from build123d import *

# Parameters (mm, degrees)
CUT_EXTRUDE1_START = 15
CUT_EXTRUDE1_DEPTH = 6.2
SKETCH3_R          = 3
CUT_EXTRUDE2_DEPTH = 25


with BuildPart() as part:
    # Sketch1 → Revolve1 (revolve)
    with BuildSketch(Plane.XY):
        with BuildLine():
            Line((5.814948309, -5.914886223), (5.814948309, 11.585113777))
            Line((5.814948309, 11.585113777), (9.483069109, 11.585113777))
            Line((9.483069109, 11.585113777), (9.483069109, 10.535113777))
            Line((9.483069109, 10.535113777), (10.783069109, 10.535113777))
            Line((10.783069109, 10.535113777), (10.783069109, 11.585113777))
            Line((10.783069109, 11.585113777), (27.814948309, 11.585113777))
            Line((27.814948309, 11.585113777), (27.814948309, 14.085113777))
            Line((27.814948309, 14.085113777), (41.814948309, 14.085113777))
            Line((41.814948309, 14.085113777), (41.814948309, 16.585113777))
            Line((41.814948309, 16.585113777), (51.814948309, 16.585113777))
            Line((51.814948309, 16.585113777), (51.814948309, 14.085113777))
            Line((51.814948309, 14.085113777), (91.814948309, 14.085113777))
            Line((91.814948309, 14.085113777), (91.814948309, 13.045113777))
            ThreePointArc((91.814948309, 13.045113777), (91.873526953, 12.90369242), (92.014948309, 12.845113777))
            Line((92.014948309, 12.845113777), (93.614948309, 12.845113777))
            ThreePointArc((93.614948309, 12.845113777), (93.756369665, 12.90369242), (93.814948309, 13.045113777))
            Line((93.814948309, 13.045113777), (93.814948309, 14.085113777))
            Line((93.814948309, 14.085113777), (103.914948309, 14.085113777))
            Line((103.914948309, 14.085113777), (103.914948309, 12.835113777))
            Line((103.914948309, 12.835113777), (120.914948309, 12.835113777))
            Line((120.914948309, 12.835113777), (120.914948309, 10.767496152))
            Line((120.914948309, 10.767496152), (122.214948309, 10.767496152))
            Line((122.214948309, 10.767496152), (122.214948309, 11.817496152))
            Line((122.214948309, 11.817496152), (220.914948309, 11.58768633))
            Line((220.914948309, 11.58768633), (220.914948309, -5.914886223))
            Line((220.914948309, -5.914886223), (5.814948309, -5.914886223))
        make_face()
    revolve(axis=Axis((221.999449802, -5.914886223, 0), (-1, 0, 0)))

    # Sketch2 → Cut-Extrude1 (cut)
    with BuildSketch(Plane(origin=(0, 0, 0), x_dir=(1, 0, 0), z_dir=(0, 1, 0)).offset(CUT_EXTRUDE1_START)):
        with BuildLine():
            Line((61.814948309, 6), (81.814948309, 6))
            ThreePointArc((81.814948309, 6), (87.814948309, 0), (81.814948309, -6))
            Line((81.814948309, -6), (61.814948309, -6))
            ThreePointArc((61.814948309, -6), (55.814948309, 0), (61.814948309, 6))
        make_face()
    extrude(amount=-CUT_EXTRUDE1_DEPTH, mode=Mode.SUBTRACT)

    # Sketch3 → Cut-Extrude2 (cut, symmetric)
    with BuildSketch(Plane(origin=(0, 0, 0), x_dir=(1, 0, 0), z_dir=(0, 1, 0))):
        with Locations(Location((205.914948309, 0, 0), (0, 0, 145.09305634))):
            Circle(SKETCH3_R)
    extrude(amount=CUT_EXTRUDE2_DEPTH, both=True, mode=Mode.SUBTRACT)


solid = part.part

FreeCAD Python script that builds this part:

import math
import FreeCAD as App
import Part
import Sketcher
from FreeCAD import Vector

doc = App.newDocument("Part")
body = doc.addObject("PartDesign::Body", "Body")

sketch1 = body.newObject("Sketcher::SketchObject", "Sketch")
sketch1.AttachmentSupport = (doc.getObject("XY_Plane"), [""])
sketch1.MapMode = "FlatFace"
sketch1.addGeometry(Part.LineSegment(Vector(5.81, 11.59, 0), Vector(5.81, -5.91, 0)), False)
sketch1.addGeometry(Part.LineSegment(Vector(5.81, -5.91, 0), Vector(220.91, -5.91, 0)), False)
sketch1.addGeometry(Part.LineSegment(Vector(220.91, -5.91, 0), Vector(220.91, 11.59, 0)), False)
sketch1.addGeometry(Part.LineSegment(Vector(220.91, 11.59, 0), Vector(122.21, 11.82, 0)), False)
sketch1.addGeometry(Part.LineSegment(Vector(122.21, 11.82, 0), Vector(122.21, 10.77, 0)), False)
sketch1.addGeometry(Part.LineSegment(Vector(122.21, 10.77, 0), Vector(120.91, 10.77, 0)), False)
sketch1.addGeometry(Part.LineSegment(Vector(120.91, 10.77, 0), Vector(120.91, 12.84, 0)), False)
sketch1.addGeometry(Part.LineSegment(Vector(120.91, 12.84, 0), Vector(103.91, 12.84, 0)), False)
sketch1.addGeometry(Part.LineSegment(Vector(103.91, 12.84, 0), Vector(103.91, 14.09, 0)), False)
sketch1.addGeometry(Part.LineSegment(Vector(103.91, 14.09, 0), Vector(93.81, 14.09, 0)), False)
sketch1.addGeometry(Part.LineSegment(Vector(93.81, 14.09, 0), Vector(93.81, 13.05, 0)), False)
sketch1.addGeometry(Part.ArcOfCircle(Part.Circle(Vector(93.61, 13.05, 0), Vector(0, 0, 1), 0.2), math.radians(-90), math.radians(0)), False)
sketch1.addGeometry(Part.LineSegment(Vector(93.61, 12.85, 0), Vector(92.01, 12.85, 0)), False)
sketch1.addGeometry(Part.ArcOfCircle(Part.Circle(Vector(92.01, 13.05, 0), Vector(0, 0, 1), 0.2), math.radians(180), math.radians(270)), False)
sketch1.addGeometry(Part.LineSegment(Vector(91.81, 13.05, 0), Vector(91.81, 14.09, 0)), False)
sketch1.addGeometry(Part.LineSegment(Vector(91.81, 14.09, 0), Vector(51.81, 14.09, 0)), False)
sketch1.addGeometry(Part.LineSegment(Vector(51.81, 14.09, 0), Vector(51.81, 16.59, 0)), False)
sketch1.addGeometry(Part.LineSegment(Vector(51.81, 16.59, 0), Vector(41.81, 16.59, 0)), False)
sketch1.addGeometry(Part.LineSegment(Vector(41.81, 16.59, 0), Vector(41.81, 14.09, 0)), False)
sketch1.addGeometry(Part.LineSegment(Vector(41.81, 14.09, 0), Vector(27.81, 14.09, 0)), False)
sketch1.addGeometry(Part.LineSegment(Vector(27.81, 14.09, 0), Vector(27.81, 11.59, 0)), False)
sketch1.addGeometry(Part.LineSegment(Vector(27.81, 11.59, 0), Vector(10.78, 11.59, 0)), False)
sketch1.addGeometry(Part.LineSegment(Vector(10.78, 11.59, 0), Vector(10.78, 10.54, 0)), False)
sketch1.addGeometry(Part.LineSegment(Vector(10.78, 10.54, 0), Vector(9.48, 10.54, 0)), False)
sketch1.addGeometry(Part.LineSegment(Vector(9.48, 10.54, 0), Vector(9.48, 11.59, 0)), False)
sketch1.addGeometry(Part.LineSegment(Vector(9.48, 11.59, 0), Vector(5.81, 11.59, 0)), False)
sketch1.addGeometry(Part.LineSegment(Vector(220.91, -5.91, 0), Vector(5.81, -5.91, 0)), True)
sketch1.addConstraint(Sketcher.Constraint("Coincident", 0, 2, 1, 1))
sketch1.addConstraint(Sketcher.Constraint("Coincident", 1, 2, 2, 1))
sketch1.addConstraint(Sketcher.Constraint("Coincident", 2, 2, 3, 1))
sketch1.addConstraint(Sketcher.Constraint("Coincident", 3, 2, 4, 1))
sketch1.addConstraint(Sketcher.Constraint("Coincident", 4, 2, 5, 1))
sketch1.addConstraint(Sketcher.Constraint("Coincident", 5, 2, 6, 1))
sketch1.addConstraint(Sketcher.Constraint("Coincident", 6, 2, 7, 1))
sketch1.addConstraint(Sketcher.Constraint("Coincident", 7, 2, 8, 1))
sketch1.addConstraint(Sketcher.Constraint("Coincident", 8, 2, 9, 1))
sketch1.addConstraint(Sketcher.Constraint("Coincident", 9, 2, 10, 1))
sketch1.addConstraint(Sketcher.Constraint("Tangent", 10, 2, 11, 2))
sketch1.addConstraint(Sketcher.Constraint("Tangent", 11, 1, 12, 1))
sketch1.addConstraint(Sketcher.Constraint("Tangent", 12, 2, 13, 2))
sketch1.addConstraint(Sketcher.Constraint("Tangent", 13, 1, 14, 1))
sketch1.addConstraint(Sketcher.Constraint("Coincident", 14, 2, 15, 1))
sketch1.addConstraint(Sketcher.Constraint("Coincident", 15, 2, 16, 1))
sketch1.addConstraint(Sketcher.Constraint("Coincident", 16, 2, 17, 1))
sketch1.addConstraint(Sketcher.Constraint("Coincident", 17, 2, 18, 1))
sketch1.addConstraint(Sketcher.Constraint("Coincident", 18, 2, 19, 1))
sketch1.addConstraint(Sketcher.Constraint("Coincident", 19, 2, 20, 1))
sketch1.addConstraint(Sketcher.Constraint("Coincident", 20, 2, 21, 1))
sketch1.addConstraint(Sketcher.Constraint("Coincident", 21, 2, 22, 1))
sketch1.addConstraint(Sketcher.Constraint("Coincident", 22, 2, 23, 1))
sketch1.addConstraint(Sketcher.Constraint("Coincident", 23, 2, 24, 1))
sketch1.addConstraint(Sketcher.Constraint("Coincident", 24, 2, 25, 1))
sketch1.addConstraint(Sketcher.Constraint("Coincident", 25, 2, 0, 1))
sketch1.addConstraint(Sketcher.Constraint("Vertical", 0))
sketch1.addConstraint(Sketcher.Constraint("Horizontal", 1))
sketch1.addConstraint(Sketcher.Constraint("Vertical", 2))
sketch1.addConstraint(Sketcher.Constraint("Vertical", 4))
sketch1.addConstraint(Sketcher.Constraint("Horizontal", 5))
sketch1.addConstraint(Sketcher.Constraint("Vertical", 6))
sketch1.addConstraint(Sketcher.Constraint("Horizontal", 7))
sketch1.addConstraint(Sketcher.Constraint("Vertical", 8))
sketch1.addConstraint(Sketcher.Constraint("Horizontal", 9))
sketch1.addConstraint(Sketcher.Constraint("Vertical", 10))
sketch1.addConstraint(Sketcher.Constraint("Horizontal", 12))
sketch1.addConstraint(Sketcher.Constraint("Vertical", 14))
sketch1.addConstraint(Sketcher.Constraint("Horizontal", 15))
sketch1.addConstraint(Sketcher.Constraint("Vertical", 16))
sketch1.addConstraint(Sketcher.Constraint("Horizontal", 17))
sketch1.addConstraint(Sketcher.Constraint("Vertical", 18))
sketch1.addConstraint(Sketcher.Constraint("Horizontal", 19))
sketch1.addConstraint(Sketcher.Constraint("Vertical", 20))
sketch1.addConstraint(Sketcher.Constraint("Horizontal", 21))
sketch1.addConstraint(Sketcher.Constraint("Vertical", 22))
sketch1.addConstraint(Sketcher.Constraint("Horizontal", 23))
sketch1.addConstraint(Sketcher.Constraint("Vertical", 24))
sketch1.addConstraint(Sketcher.Constraint("Horizontal", 25))
sketch1.addConstraint(Sketcher.Constraint("Horizontal", 26))
sketch1.addConstraint(Sketcher.Constraint("Coincident", 26, 1, 1, 2))
sketch1.addConstraint(Sketcher.Constraint("Equal", 11, 13))
sketch1.addConstraint(Sketcher.Constraint("Horizontal", 9, 2, 14, 2))
sketch1.addConstraint(Sketcher.Constraint("Horizontal", 15, 2, 18, 2))
sketch1.addConstraint(Sketcher.Constraint("Horizontal", 21, 2, 24, 2))
sketch1.addConstraint(Sketcher.Constraint("Vertical", 25, 2, 26, 2))
sketch1.addConstraint(Sketcher.Constraint("Equal", 5, 23))
sketch1.addConstraint(Sketcher.Constraint("Equal", 18, 20))
sketch1.addConstraint(Sketcher.Constraint("Equal", 4, 22))
sketch1.addConstraint(Sketcher.Constraint("Radius", 11, 0.2))
sketch1.addConstraint(Sketcher.Constraint("DistanceX", 7, 2, 7, 1, 17.0))
sketch1.addConstraint(Sketcher.Constraint("DistanceX", 15, 2, 15, 1, 40.0))
sketch1.addConstraint(Sketcher.Constraint("DistanceX", 17, 2, 17, 1, 10.0))
sketch1.addConstraint(Sketcher.Constraint("DistanceX", 19, 2, 19, 1, 14.0))
sketch1.addConstraint(Sketcher.Constraint("DistanceX", 1, 1, 1, 2, 215.1))
sketch1.addConstraint(Sketcher.Constraint("DistanceX", 5, 2, 5, 1, 1.3))
sketch1.addConstraint(Sketcher.Constraint("DistanceX", 9, 2, 9, 1, 10.1))
sketch1.addConstraint(Sketcher.Constraint("DistanceX", 12, 2, 12, 1, 1.6))
sketch1.addConstraint(Sketcher.Constraint("DistanceY", 0, 2, 0, 1, 17.5))
sketch1.addConstraint(Sketcher.Constraint("DistanceY", 16, 1, 16, 2, 2.5))
sketch1.addConstraint(Sketcher.Constraint("DistanceX", 5, 2, 2, 2, 100.0))
sketch1.addConstraint(Sketcher.Constraint("DistanceY", 4, 2, 4, 1, 1.05))
sketch1.addConstraint(Sketcher.Constraint("DistanceY", 8, 1, 8, 2, 1.25))
sketch1.addConstraint(Sketcher.Constraint("DistanceY", 10, 2, 10, 1, 1.04))
sketch1.addConstraint(Sketcher.Constraint("DistanceX", 21, 2, 21, 1, 17.031879))
sketch1.addConstraint(Sketcher.Constraint("DistanceY", 2, 1, 2, 2, 17.502573))
sketch1.addConstraint(Sketcher.Constraint("DistanceY", 6, 1, 6, 2, 2.067618))
sketch1.addConstraint(Sketcher.Constraint("DistanceX", -1, 1, 11, 3, 93.614948))
sketch1.addConstraint(Sketcher.Constraint("DistanceY", -1, 1, 11, 3, 13.045114))
revolution = body.newObject("PartDesign::Revolution", "Revolution")
revolution.Profile = sketch1
revolution.ReferenceAxis = (sketch1, ["Axis0"])
revolution.Angle = 360

sketch2 = body.newObject("Sketcher::SketchObject", "Sketch001")
sketch2.AttachmentSupport = (doc.getObject("XZ_Plane"), [""])
sketch2.MapMode = "FlatFace"
sketch2.AttachmentOffset = App.Placement(Vector(0, 0, -15), App.Rotation())
sketch2.addGeometry(Part.LineSegment(Vector(82, -6, 0), Vector(62, -6, 0)), False)
sketch2.addGeometry(Part.ArcOfCircle(Part.Circle(Vector(62, 0, 0), Vector(0, 0, 1), 6), math.radians(90), math.radians(270)), False)
sketch2.addGeometry(Part.LineSegment(Vector(62, 6, 0), Vector(82, 6, 0)), False)
sketch2.addGeometry(Part.ArcOfCircle(Part.Circle(Vector(82, 0, 0), Vector(0, 0, 1), 6), math.radians(-90), math.radians(90)), False)
sketch2.addConstraint(Sketcher.Constraint("Tangent", 0, 2, 1, 2))
sketch2.addConstraint(Sketcher.Constraint("Tangent", 1, 1, 2, 1))
sketch2.addConstraint(Sketcher.Constraint("Tangent", 2, 2, 3, 2))
sketch2.addConstraint(Sketcher.Constraint("Tangent", 3, 1, 0, 1))
sketch2.addConstraint(Sketcher.Constraint("Horizontal", 0))
sketch2.addConstraint(Sketcher.Constraint("Horizontal", 2))
sketch2.addConstraint(Sketcher.Constraint("PointOnObject", 1, 3, -1))
sketch2.addConstraint(Sketcher.Constraint("Radius", 1, 6.0))
sketch2.addConstraint(Sketcher.Constraint("DistanceX", 0, 2, 0, 1, 20.0))
sketch2.addConstraint(Sketcher.Constraint("DistanceX", -1, 1, 1, 3, 61.814948))
pocket1 = body.newObject("PartDesign::Pocket", "Pocket")
pocket1.Profile = sketch2
pocket1.Length = 6.2
pocket1.Reversed = True

sketch3 = body.newObject("Sketcher::SketchObject", "Sketch002")
sketch3.AttachmentSupport = (doc.getObject("XZ_Plane"), [""])
sketch3.MapMode = "FlatFace"
sketch3.addGeometry(Part.Circle(Vector(205.9, 0, 0), Vector(0, 0, 1), 3), False)
sketch3.addConstraint(Sketcher.Constraint("PointOnObject", 0, 3, -1))
sketch3.addConstraint(Sketcher.Constraint("Diameter", 0, 6.0))
sketch3.addConstraint(Sketcher.Constraint("DistanceX", -1, 1, 0, 3, 205.914948))
pocket2 = body.newObject("PartDesign::Pocket", "Pocket001")
pocket2.Profile = sketch3
pocket2.Length = 50
pocket2.Midplane = True

doc.recompute()
